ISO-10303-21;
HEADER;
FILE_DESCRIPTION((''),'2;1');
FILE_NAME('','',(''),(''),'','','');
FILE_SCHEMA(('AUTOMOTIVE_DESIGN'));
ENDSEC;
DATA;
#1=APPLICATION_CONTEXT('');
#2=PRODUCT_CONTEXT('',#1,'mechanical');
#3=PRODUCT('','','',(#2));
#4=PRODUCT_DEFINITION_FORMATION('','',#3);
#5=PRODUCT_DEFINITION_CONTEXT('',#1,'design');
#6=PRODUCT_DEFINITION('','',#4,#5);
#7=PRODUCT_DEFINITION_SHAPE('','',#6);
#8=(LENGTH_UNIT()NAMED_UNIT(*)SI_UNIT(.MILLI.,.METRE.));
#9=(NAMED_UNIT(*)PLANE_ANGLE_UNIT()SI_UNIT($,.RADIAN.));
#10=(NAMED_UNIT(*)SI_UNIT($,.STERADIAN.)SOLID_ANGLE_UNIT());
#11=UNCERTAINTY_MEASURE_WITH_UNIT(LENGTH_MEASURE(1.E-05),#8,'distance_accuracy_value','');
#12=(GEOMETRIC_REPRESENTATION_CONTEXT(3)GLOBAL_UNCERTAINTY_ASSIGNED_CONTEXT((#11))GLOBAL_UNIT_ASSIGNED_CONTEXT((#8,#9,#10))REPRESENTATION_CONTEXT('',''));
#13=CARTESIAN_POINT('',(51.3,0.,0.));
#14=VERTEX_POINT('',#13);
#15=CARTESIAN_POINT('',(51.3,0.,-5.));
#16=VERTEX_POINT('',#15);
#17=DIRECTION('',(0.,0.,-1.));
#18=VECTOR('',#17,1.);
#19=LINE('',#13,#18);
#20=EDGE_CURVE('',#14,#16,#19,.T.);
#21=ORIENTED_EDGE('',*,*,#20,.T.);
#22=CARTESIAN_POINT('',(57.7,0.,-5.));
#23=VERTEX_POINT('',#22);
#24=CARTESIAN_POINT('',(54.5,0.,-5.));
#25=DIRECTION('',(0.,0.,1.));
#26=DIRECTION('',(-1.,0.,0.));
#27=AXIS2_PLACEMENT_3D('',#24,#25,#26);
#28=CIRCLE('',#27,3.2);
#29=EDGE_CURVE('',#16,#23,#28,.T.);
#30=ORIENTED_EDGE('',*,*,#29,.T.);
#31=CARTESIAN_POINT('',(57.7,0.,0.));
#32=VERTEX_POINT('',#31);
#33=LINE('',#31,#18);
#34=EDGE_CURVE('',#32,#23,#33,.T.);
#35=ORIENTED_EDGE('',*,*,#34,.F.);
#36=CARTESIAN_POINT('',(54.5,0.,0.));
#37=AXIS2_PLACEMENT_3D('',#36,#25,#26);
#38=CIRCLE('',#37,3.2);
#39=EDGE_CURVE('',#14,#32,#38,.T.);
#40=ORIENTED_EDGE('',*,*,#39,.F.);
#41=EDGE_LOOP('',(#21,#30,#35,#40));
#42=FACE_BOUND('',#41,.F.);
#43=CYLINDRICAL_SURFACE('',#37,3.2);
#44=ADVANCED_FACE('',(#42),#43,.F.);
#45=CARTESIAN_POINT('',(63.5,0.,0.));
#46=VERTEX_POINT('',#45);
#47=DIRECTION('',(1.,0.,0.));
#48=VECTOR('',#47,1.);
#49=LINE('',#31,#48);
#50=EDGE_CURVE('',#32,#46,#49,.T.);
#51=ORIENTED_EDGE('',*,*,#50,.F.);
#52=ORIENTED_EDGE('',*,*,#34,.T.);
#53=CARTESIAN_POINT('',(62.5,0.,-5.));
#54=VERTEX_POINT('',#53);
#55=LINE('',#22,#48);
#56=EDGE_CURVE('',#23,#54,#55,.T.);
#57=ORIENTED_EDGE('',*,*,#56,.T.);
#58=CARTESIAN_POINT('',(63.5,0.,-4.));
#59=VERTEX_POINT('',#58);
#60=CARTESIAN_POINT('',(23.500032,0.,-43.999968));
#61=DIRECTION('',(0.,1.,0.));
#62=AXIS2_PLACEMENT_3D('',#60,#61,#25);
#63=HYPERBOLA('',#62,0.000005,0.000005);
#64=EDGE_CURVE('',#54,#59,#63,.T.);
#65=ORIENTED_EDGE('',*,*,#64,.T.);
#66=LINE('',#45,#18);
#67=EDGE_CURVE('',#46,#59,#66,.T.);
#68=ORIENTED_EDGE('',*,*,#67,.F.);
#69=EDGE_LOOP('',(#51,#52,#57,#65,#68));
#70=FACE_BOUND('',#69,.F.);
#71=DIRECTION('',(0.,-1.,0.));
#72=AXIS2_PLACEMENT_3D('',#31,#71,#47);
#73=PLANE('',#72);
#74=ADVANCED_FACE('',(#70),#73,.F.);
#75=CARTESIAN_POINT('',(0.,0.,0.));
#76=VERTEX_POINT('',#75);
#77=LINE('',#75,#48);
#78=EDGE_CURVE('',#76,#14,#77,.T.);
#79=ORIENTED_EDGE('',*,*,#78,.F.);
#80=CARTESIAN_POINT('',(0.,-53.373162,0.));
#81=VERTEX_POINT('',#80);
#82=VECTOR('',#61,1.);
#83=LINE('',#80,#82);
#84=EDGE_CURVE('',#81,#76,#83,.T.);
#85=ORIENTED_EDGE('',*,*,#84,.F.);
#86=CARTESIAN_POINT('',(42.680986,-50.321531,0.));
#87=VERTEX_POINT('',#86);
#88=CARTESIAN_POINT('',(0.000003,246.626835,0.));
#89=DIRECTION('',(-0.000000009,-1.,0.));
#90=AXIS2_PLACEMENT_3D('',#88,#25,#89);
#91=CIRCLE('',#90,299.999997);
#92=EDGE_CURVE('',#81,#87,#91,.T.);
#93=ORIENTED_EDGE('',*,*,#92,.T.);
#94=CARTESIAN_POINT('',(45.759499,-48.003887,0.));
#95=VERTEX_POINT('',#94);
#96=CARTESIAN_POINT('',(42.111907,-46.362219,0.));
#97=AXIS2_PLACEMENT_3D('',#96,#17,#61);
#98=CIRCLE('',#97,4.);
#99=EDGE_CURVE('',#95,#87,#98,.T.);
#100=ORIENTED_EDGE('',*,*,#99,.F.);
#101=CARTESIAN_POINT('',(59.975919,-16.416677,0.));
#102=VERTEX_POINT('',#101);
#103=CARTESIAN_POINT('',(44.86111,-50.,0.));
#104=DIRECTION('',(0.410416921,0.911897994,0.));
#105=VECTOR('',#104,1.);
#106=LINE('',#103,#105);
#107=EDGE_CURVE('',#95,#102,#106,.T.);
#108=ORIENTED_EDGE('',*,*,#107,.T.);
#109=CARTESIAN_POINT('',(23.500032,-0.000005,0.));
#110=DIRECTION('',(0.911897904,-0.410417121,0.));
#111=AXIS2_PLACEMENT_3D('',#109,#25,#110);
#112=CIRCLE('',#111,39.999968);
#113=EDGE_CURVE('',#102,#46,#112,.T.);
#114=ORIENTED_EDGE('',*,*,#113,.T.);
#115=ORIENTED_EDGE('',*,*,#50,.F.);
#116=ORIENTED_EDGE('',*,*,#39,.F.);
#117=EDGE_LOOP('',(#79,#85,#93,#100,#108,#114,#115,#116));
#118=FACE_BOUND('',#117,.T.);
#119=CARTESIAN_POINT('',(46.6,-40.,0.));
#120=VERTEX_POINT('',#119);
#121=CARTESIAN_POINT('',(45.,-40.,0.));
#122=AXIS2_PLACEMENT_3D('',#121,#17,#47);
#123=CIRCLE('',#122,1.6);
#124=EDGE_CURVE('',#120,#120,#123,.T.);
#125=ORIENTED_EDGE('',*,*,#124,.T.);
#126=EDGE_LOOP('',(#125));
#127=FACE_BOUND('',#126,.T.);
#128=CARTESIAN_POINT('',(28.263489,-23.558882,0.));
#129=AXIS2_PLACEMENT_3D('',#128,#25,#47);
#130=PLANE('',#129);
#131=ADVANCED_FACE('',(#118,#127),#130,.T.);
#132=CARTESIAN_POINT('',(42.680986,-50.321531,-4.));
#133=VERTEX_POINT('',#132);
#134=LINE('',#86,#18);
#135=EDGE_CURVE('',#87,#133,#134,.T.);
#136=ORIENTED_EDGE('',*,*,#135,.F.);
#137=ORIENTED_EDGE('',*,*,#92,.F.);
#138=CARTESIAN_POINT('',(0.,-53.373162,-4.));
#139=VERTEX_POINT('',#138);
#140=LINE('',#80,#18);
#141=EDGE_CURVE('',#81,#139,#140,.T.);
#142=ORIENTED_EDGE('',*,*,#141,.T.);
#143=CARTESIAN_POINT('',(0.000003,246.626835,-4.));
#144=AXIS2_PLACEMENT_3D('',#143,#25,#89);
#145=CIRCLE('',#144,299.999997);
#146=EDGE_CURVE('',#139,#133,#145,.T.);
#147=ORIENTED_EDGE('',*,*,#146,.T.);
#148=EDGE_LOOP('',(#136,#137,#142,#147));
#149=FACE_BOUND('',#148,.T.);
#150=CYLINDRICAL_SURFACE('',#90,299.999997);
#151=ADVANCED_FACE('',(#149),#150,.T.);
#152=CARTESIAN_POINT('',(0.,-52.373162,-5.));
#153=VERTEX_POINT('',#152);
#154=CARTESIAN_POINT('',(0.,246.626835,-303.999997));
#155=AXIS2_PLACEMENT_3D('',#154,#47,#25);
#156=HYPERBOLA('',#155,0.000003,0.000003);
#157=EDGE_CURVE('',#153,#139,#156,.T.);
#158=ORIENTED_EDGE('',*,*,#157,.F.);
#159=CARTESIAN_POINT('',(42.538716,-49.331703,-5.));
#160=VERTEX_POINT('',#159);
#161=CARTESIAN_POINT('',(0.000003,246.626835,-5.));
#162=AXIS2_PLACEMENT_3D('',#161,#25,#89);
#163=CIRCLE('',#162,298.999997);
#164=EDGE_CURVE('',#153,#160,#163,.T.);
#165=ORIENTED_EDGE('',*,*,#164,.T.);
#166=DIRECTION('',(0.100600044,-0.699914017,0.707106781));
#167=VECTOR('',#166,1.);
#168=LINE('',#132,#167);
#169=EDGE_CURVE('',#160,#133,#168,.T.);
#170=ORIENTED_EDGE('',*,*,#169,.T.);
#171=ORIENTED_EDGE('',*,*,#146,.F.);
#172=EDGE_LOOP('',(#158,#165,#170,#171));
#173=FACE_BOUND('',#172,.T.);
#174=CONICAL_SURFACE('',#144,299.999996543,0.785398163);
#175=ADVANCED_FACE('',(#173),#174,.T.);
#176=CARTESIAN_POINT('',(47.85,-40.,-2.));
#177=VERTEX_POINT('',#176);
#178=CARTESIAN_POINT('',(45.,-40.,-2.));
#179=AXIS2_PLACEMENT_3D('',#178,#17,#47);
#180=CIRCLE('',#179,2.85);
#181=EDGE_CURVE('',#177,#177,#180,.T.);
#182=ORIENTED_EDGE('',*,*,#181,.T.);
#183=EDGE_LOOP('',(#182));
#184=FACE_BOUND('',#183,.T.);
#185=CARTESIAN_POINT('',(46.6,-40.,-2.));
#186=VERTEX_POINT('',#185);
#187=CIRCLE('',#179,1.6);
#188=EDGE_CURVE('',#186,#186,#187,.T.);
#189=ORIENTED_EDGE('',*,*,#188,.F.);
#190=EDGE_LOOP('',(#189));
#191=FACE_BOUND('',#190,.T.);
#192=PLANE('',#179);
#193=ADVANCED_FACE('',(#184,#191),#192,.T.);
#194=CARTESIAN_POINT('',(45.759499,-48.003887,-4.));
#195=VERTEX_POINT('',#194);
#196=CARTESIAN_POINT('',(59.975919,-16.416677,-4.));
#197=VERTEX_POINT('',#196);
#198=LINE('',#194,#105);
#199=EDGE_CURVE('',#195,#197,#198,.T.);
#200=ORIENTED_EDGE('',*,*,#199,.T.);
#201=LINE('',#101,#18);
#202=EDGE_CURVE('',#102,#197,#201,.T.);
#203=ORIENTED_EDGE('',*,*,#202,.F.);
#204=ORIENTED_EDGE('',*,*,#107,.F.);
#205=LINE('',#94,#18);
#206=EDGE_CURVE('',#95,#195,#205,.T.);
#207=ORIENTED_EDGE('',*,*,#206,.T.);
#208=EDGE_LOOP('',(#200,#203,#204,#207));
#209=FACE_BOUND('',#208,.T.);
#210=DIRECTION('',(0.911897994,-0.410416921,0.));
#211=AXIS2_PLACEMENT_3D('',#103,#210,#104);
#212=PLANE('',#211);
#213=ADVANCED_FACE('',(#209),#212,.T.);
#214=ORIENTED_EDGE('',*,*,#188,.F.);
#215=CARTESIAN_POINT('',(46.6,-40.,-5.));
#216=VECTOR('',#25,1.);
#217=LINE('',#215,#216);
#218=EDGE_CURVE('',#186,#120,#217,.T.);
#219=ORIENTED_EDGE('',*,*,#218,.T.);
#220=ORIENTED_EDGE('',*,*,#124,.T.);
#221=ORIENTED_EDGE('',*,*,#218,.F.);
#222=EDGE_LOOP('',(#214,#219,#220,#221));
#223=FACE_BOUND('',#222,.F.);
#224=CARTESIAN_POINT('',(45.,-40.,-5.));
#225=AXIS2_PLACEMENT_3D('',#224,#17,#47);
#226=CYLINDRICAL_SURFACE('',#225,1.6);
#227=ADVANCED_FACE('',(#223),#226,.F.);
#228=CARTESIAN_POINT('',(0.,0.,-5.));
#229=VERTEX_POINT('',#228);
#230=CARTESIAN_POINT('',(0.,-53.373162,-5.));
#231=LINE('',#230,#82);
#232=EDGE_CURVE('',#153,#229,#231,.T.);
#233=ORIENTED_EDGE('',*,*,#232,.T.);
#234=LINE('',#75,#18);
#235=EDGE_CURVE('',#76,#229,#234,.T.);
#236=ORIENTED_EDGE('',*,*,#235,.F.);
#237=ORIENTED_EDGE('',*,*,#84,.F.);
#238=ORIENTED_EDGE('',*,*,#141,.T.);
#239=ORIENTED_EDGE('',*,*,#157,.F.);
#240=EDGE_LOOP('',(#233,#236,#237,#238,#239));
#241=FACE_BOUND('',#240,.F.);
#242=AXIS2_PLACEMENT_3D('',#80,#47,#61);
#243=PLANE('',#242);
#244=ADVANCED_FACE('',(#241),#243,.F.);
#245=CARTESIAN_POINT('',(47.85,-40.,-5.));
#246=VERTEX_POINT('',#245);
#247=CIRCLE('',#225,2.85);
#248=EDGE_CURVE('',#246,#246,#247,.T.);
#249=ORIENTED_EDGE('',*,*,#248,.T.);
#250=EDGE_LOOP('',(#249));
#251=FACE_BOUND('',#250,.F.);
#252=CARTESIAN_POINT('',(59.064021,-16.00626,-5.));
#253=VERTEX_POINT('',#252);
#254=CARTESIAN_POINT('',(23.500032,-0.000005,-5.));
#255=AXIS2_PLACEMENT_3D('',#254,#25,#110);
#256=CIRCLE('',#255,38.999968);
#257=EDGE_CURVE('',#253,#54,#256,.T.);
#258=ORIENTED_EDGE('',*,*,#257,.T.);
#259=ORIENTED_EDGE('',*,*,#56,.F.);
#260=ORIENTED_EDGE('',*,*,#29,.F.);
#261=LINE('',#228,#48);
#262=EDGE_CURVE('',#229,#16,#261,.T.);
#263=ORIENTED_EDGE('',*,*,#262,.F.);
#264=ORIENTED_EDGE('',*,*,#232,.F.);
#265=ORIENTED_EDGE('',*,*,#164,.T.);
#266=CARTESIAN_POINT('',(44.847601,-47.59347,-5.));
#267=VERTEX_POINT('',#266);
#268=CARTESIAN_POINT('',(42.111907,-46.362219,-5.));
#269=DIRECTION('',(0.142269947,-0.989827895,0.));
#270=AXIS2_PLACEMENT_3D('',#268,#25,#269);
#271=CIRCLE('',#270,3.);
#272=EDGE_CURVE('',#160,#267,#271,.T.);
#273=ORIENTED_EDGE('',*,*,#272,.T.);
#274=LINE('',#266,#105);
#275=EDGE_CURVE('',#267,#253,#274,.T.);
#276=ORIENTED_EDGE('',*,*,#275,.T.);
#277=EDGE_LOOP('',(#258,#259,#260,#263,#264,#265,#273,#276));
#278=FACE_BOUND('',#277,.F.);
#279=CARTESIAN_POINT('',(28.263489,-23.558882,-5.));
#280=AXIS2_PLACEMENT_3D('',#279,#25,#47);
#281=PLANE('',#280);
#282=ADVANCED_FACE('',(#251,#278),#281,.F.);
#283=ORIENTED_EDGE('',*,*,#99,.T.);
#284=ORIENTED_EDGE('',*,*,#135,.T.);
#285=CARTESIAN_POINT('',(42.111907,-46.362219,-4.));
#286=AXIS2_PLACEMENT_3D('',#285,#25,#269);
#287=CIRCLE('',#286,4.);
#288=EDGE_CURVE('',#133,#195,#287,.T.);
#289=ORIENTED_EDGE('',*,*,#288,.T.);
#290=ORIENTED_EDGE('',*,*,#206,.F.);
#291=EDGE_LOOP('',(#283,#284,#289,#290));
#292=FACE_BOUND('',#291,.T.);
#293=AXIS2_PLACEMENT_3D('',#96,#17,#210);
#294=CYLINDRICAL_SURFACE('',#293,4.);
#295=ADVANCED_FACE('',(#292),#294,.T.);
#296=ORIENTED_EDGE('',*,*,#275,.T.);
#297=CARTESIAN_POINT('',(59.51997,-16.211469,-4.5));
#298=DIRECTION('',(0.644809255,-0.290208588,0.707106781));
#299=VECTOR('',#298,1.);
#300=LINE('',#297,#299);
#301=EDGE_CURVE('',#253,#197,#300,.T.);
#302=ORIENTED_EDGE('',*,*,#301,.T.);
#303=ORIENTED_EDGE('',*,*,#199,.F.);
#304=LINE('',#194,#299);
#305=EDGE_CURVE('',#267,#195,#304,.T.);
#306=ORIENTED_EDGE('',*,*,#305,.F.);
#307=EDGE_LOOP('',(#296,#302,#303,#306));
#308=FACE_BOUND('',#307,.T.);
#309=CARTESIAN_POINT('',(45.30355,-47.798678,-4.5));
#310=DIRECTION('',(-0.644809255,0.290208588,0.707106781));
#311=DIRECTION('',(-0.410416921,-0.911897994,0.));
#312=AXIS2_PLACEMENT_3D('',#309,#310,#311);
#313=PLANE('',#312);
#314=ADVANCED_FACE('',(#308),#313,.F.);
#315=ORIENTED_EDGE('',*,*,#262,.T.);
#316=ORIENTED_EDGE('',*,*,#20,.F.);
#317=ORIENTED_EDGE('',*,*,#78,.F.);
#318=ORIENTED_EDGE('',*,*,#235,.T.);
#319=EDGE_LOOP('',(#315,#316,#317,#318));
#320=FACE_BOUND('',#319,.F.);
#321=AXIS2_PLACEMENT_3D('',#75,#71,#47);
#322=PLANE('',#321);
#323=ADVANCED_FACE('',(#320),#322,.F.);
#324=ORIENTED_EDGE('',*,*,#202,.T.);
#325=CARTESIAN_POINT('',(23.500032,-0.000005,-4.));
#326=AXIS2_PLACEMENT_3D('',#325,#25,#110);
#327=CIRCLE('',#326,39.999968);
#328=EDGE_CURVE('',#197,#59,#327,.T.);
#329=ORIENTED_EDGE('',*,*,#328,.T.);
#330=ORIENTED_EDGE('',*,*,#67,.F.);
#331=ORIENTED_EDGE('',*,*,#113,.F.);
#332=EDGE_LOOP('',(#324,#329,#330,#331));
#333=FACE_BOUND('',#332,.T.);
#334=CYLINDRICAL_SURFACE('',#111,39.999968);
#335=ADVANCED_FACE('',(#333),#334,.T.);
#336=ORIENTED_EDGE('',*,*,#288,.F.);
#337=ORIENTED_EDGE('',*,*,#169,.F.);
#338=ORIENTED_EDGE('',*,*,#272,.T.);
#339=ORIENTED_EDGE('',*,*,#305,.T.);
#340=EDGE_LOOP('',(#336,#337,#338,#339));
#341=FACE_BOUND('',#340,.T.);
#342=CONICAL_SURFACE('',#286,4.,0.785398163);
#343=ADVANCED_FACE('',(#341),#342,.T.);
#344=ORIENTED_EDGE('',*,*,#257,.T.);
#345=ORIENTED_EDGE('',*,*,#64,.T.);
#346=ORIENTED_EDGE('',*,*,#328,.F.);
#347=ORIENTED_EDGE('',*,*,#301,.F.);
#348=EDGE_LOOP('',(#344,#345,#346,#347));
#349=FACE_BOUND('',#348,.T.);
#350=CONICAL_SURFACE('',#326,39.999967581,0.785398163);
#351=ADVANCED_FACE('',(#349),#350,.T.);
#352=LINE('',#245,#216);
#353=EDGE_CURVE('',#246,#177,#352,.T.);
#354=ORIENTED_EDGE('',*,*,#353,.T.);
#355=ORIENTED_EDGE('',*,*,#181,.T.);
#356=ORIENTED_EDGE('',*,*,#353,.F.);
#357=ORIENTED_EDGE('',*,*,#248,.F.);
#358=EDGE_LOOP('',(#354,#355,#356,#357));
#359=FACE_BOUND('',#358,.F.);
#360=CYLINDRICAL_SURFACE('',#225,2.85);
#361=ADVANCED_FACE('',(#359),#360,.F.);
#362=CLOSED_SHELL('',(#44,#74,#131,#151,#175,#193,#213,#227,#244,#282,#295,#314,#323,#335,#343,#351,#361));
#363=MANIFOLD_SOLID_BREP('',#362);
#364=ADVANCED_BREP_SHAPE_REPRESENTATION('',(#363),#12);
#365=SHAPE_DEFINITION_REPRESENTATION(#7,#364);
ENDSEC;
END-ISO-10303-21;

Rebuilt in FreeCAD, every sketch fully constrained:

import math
import FreeCAD as App
import Part
import Sketcher

V = App.Vector


def edges_at(feature, points):
    """Names of the edges that pass closest to the given points."""
    edges = feature.Shape.Edges
    near = lambda p: min(range(len(edges)), key=lambda i: edges[i].distToShape(Part.Vertex(*p))[0])
    return sorted({f"Edge{near(p) + 1}" for p in points})

doc = App.newDocument("Part")
body = doc.addObject("PartDesign::Body", "Body")

# Sketch on XY plane
sketch1 = body.newObject("Sketcher::SketchObject", "Sketch")
sketch1.AttachmentSupport = (doc.getObject("XY_Plane"), [""])
sketch1.MapMode = "FlatFace"
sketch1.addGeometry(Part.LineSegment(V(44.9, -50, 0), V(60, -16.4, 0)), False)
sketch1.addGeometry(Part.ArcOfCircle(Part.Circle(V(23.5, 0, 0), V(0, 0, 1), 40), math.radians(-24), math.radians(0)), False)
sketch1.addGeometry(Part.LineSegment(V(63.5, 0, 0), V(57.7, 0, 0)), False)
sketch1.addGeometry(Part.ArcOfCircle(Part.Circle(V(54.5, 0, 0), V(0, 0, 1), 3.2), math.radians(180), math.radians(360)), False)
sketch1.addGeometry(Part.LineSegment(V(51.3, 0, 0), V(0, 0, 0)), False)
sketch1.addGeometry(Part.LineSegment(V(0, 0, 0), V(0, -53.4, 0)), False)
sketch1.addGeometry(Part.ArcOfCircle(Part.Circle(V(0, 246.6, 0), V(0, 0, 1), 300), math.radians(-90), math.radians(-81.4)), False)
sketch1.addConstraint(Sketcher.Constraint("Tangent", 0, 2, 1, 1))
sketch1.addConstraint(Sketcher.Constraint("Coincident", 1, 2, 2, 1))
sketch1.addConstraint(Sketcher.Constraint("Coincident", 2, 2, 3, 2))
sketch1.addConstraint(Sketcher.Constraint("Coincident", 3, 1, 4, 1))
sketch1.addConstraint(Sketcher.Constraint("Coincident", 4, 2, 5, 1))
sketch1.addConstraint(Sketcher.Constraint("Coincident", 5, 2, 6, 1))
sketch1.addConstraint(Sketcher.Constraint("Coincident", 6, 2, 0, 1))
sketch1.addConstraint(Sketcher.Constraint("Horizontal", 2))
sketch1.addConstraint(Sketcher.Constraint("Horizontal", 4))
sketch1.addConstraint(Sketcher.Constraint("Vertical", 5))
sketch1.addConstraint(Sketcher.Constraint("Coincident", 4, 2, -1, 1))
sketch1.addConstraint(Sketcher.Constraint("PointOnObject", 3, 3, -1))
sketch1.addConstraint(Sketcher.Constraint("PointOnObject", 1, 2, -1))
sketch1.addConstraint(Sketcher.Constraint("Radius", 3, 3.2))
sketch1.addConstraint(Sketcher.Constraint("DistanceX", 2, 2, 2, 1, 5.8))
sketch1.addConstraint(Sketcher.Constraint("DistanceX", 4, 2, 4, 1, 51.3))
sketch1.addConstraint(Sketcher.Constraint("DistanceY", 6, 2, -1, 1, 50.0))
sketch1.addConstraint(Sketcher.Constraint("Radius", 1, 39.999968))
sketch1.addConstraint(Sketcher.Constraint("Radius", 6, 299.999997))
sketch1.addConstraint(Sketcher.Constraint("Distance", 0, 36.827938))
sketch1.addConstraint(Sketcher.Constraint("DistanceY", 5, 2, 5, 1, 53.373162))
sketch1.addConstraint(Sketcher.Constraint("DistanceX", -1, 1, 0, 2, 59.975919))
pad1 = body.newObject("PartDesign::Pad", "Pad")
pad1.Profile = sketch1
pad1.Length = 5
pad1.Reversed = True

# Sketch on XY plane
sketch2 = body.newObject("Sketcher::SketchObject", "Sketch001")
sketch2.AttachmentSupport = (doc.getObject("XY_Plane"), [""])
sketch2.MapMode = "FlatFace"
sketch2.AttachmentOffset = App.Placement(V(0, 0, -5), App.Rotation())
sketch2.addGeometry(Part.Circle(V(45, -40, 0), V(0, 0, 1), 1.6), False)
sketch2.addGeometry(Part.Circle(V(54.5, 0, 0), V(0, 0, 1), 3.2), False)
sketch2.addConstraint(Sketcher.Constraint("PointOnObject", 1, 3, -1))
sketch2.addConstraint(Sketcher.Constraint("Diameter", 0, 3.2))
sketch2.addConstraint(Sketcher.Constraint("Diameter", 1, 6.4))
sketch2.addConstraint(Sketcher.Constraint("DistanceX", -1, 1, 0, 3, 45.0))
sketch2.addConstraint(Sketcher.Constraint("DistanceY", 0, 3, -1, 1, 40.0))
sketch2.addConstraint(Sketcher.Constraint("DistanceX", -1, 1, 1, 3, 54.5))
pocket1 = body.newObject("PartDesign::Pocket", "Pocket")
pocket1.Profile = sketch2
pocket1.Type = "ThroughAll"
pocket1.Reversed = True

# Sketch on XY plane
sketch3 = body.newObject("Sketcher::SketchObject", "Sketch002")
sketch3.AttachmentSupport = (doc.getObject("XY_Plane"), [""])
sketch3.MapMode = "FlatFace"
sketch3.AttachmentOffset = App.Placement(V(0, 0, -5), App.Rotation())
sketch3.addGeometry(Part.Circle(V(45, -40, 0), V(0, 0, 1), 2.9), False)
sketch3.addConstraint(Sketcher.Constraint("Diameter", 0, 5.7))
sketch3.addConstraint(Sketcher.Constraint("DistanceX", -1, 1, 0, 3, 45.0))
sketch3.addConstraint(Sketcher.Constraint("DistanceY", 0, 3, -1, 1, 40.0))
pocket2 = body.newObject("PartDesign::Pocket", "Pocket001")
pocket2.Profile = sketch3
pocket2.Length = 3
pocket2.Reversed = True
doc.recompute()

fillet = body.newObject("PartDesign::Fillet", "Fillet")
fillet.Base = (pocket2, edges_at(pocket2, [(44.861, -50, -2.5)]))
fillet.Radius = 4
doc.recompute()

chamfer = body.newObject("PartDesign::Chamfer", "Chamfer")
chamfer.Base = (fillet, edges_at(fillet, [(21.395, -52.609, -5)]))
chamfer.Size = 1

doc.recompute()
